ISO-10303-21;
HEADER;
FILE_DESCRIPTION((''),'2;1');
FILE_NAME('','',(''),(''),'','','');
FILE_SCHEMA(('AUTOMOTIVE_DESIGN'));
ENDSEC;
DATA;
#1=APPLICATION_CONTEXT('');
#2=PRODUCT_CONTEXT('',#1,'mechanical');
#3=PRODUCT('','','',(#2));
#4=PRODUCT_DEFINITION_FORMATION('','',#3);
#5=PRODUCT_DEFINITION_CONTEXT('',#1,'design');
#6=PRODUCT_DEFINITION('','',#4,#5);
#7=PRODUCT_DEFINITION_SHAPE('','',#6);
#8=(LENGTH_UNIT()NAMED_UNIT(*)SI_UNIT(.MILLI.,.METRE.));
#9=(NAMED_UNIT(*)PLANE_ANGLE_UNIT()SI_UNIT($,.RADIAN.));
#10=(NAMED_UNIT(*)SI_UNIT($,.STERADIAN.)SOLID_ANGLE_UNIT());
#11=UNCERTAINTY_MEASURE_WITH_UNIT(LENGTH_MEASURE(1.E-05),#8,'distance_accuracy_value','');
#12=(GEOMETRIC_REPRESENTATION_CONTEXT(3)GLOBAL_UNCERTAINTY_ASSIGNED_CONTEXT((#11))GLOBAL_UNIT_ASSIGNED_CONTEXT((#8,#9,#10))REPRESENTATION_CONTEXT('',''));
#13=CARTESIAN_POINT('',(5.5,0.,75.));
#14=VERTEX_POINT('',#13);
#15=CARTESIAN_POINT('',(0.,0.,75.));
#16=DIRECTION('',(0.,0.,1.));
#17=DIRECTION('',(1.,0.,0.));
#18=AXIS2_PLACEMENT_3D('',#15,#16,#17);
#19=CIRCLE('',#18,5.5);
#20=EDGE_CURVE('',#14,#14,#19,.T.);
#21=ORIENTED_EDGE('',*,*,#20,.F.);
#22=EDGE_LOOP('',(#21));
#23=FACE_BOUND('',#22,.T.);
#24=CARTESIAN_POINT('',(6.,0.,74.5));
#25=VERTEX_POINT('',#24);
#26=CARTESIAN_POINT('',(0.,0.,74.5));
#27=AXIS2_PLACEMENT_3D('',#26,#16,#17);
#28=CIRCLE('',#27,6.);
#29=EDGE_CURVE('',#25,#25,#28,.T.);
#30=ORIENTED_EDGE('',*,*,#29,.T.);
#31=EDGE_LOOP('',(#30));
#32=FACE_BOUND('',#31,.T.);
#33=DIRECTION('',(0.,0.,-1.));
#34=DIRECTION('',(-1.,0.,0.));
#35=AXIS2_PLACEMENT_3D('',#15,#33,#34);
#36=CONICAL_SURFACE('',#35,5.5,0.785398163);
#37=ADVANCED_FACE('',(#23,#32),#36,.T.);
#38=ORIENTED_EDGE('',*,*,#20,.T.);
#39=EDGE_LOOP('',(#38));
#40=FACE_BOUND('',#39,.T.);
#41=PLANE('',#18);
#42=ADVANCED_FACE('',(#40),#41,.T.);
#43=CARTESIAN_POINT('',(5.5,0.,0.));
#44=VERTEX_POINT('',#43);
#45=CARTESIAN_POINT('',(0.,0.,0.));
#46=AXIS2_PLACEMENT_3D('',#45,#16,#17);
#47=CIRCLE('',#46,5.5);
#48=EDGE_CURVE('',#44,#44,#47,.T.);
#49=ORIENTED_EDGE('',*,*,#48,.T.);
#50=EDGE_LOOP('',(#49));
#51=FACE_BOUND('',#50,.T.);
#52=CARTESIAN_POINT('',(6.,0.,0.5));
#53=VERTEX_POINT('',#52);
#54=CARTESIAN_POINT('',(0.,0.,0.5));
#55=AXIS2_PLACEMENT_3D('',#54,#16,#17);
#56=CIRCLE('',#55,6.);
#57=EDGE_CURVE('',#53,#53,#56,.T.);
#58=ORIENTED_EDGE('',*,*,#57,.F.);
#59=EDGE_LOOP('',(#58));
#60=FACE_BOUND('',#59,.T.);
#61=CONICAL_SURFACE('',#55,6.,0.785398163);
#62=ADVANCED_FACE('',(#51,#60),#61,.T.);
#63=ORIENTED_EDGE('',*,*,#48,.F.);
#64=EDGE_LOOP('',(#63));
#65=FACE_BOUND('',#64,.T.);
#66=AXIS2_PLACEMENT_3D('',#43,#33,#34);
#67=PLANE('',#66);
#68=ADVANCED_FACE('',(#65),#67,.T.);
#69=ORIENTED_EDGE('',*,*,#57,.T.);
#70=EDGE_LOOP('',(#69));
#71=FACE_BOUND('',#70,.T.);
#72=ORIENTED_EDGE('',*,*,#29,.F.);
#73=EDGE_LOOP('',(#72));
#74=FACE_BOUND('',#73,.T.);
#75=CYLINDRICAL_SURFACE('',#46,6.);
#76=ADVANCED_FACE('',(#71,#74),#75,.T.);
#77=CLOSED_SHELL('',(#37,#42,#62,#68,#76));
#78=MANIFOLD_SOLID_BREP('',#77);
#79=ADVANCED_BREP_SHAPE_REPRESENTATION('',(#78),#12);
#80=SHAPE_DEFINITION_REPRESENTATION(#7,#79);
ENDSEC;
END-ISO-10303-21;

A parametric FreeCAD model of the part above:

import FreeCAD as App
import Part
import Sketcher

V = App.Vector


def add_polygon(sketch, points):
    """Adds a closed chain of lines whose ends are joined by coincident constraints."""
    first, n = sketch.GeometryCount, len(points)
    for a, b in zip(points, points[1:] + points[:1]):
        sketch.addGeometry(Part.LineSegment(App.Vector(*a, 0), App.Vector(*b, 0)), False)
    for i in range(n):
        sketch.addConstraint(Sketcher.Constraint("Coincident", first + i, 2, first + (i + 1) % n, 1))

doc = App.newDocument("Part")
body = doc.addObject("PartDesign::Body", "Body")

# Sketch on XZ plane
sketch1 = body.newObject("Sketcher::SketchObject", "Sketch")
sketch1.AttachmentSupport = (doc.getObject("XZ_Plane"), [""])
sketch1.MapMode = "FlatFace"
add_polygon(sketch1, [(5.5, 0), (0, 0), (0, 75), (5.5, 75), (6, 74.5), (6, 0.5)])  # lines 0-5
sketch1.addConstraint(Sketcher.Constraint("Horizontal", 0))
sketch1.addConstraint(Sketcher.Constraint("Vertical", 1))
sketch1.addConstraint(Sketcher.Constraint("Horizontal", 2))
sketch1.addConstraint(Sketcher.Constraint("Vertical", 4))
sketch1.addConstraint(Sketcher.Constraint("Coincident", 0, 2, -1, 1))
sketch1.addConstraint(Sketcher.Constraint("Perpendicular", 3, 5))
sketch1.addConstraint(Sketcher.Constraint("Vertical", 2, 2, 5, 2))
sketch1.addConstraint(Sketcher.Constraint("Equal", 3, 5))
sketch1.addConstraint(Sketcher.Constraint("DistanceY", 1, 1, 1, 2, 75.0))
sketch1.addConstraint(Sketcher.Constraint("DistanceY", 4, 2, 4, 1, 74.0))
sketch1.addConstraint(Sketcher.Constraint("DistanceX", 0, 2, 0, 1, 5.5))
revolution = body.newObject("PartDesign::Revolution", "Revolution")
revolution.Profile = sketch1
revolution.ReferenceAxis = (sketch1, ["V_Axis"])
revolution.Angle = 360

doc.recompute()
